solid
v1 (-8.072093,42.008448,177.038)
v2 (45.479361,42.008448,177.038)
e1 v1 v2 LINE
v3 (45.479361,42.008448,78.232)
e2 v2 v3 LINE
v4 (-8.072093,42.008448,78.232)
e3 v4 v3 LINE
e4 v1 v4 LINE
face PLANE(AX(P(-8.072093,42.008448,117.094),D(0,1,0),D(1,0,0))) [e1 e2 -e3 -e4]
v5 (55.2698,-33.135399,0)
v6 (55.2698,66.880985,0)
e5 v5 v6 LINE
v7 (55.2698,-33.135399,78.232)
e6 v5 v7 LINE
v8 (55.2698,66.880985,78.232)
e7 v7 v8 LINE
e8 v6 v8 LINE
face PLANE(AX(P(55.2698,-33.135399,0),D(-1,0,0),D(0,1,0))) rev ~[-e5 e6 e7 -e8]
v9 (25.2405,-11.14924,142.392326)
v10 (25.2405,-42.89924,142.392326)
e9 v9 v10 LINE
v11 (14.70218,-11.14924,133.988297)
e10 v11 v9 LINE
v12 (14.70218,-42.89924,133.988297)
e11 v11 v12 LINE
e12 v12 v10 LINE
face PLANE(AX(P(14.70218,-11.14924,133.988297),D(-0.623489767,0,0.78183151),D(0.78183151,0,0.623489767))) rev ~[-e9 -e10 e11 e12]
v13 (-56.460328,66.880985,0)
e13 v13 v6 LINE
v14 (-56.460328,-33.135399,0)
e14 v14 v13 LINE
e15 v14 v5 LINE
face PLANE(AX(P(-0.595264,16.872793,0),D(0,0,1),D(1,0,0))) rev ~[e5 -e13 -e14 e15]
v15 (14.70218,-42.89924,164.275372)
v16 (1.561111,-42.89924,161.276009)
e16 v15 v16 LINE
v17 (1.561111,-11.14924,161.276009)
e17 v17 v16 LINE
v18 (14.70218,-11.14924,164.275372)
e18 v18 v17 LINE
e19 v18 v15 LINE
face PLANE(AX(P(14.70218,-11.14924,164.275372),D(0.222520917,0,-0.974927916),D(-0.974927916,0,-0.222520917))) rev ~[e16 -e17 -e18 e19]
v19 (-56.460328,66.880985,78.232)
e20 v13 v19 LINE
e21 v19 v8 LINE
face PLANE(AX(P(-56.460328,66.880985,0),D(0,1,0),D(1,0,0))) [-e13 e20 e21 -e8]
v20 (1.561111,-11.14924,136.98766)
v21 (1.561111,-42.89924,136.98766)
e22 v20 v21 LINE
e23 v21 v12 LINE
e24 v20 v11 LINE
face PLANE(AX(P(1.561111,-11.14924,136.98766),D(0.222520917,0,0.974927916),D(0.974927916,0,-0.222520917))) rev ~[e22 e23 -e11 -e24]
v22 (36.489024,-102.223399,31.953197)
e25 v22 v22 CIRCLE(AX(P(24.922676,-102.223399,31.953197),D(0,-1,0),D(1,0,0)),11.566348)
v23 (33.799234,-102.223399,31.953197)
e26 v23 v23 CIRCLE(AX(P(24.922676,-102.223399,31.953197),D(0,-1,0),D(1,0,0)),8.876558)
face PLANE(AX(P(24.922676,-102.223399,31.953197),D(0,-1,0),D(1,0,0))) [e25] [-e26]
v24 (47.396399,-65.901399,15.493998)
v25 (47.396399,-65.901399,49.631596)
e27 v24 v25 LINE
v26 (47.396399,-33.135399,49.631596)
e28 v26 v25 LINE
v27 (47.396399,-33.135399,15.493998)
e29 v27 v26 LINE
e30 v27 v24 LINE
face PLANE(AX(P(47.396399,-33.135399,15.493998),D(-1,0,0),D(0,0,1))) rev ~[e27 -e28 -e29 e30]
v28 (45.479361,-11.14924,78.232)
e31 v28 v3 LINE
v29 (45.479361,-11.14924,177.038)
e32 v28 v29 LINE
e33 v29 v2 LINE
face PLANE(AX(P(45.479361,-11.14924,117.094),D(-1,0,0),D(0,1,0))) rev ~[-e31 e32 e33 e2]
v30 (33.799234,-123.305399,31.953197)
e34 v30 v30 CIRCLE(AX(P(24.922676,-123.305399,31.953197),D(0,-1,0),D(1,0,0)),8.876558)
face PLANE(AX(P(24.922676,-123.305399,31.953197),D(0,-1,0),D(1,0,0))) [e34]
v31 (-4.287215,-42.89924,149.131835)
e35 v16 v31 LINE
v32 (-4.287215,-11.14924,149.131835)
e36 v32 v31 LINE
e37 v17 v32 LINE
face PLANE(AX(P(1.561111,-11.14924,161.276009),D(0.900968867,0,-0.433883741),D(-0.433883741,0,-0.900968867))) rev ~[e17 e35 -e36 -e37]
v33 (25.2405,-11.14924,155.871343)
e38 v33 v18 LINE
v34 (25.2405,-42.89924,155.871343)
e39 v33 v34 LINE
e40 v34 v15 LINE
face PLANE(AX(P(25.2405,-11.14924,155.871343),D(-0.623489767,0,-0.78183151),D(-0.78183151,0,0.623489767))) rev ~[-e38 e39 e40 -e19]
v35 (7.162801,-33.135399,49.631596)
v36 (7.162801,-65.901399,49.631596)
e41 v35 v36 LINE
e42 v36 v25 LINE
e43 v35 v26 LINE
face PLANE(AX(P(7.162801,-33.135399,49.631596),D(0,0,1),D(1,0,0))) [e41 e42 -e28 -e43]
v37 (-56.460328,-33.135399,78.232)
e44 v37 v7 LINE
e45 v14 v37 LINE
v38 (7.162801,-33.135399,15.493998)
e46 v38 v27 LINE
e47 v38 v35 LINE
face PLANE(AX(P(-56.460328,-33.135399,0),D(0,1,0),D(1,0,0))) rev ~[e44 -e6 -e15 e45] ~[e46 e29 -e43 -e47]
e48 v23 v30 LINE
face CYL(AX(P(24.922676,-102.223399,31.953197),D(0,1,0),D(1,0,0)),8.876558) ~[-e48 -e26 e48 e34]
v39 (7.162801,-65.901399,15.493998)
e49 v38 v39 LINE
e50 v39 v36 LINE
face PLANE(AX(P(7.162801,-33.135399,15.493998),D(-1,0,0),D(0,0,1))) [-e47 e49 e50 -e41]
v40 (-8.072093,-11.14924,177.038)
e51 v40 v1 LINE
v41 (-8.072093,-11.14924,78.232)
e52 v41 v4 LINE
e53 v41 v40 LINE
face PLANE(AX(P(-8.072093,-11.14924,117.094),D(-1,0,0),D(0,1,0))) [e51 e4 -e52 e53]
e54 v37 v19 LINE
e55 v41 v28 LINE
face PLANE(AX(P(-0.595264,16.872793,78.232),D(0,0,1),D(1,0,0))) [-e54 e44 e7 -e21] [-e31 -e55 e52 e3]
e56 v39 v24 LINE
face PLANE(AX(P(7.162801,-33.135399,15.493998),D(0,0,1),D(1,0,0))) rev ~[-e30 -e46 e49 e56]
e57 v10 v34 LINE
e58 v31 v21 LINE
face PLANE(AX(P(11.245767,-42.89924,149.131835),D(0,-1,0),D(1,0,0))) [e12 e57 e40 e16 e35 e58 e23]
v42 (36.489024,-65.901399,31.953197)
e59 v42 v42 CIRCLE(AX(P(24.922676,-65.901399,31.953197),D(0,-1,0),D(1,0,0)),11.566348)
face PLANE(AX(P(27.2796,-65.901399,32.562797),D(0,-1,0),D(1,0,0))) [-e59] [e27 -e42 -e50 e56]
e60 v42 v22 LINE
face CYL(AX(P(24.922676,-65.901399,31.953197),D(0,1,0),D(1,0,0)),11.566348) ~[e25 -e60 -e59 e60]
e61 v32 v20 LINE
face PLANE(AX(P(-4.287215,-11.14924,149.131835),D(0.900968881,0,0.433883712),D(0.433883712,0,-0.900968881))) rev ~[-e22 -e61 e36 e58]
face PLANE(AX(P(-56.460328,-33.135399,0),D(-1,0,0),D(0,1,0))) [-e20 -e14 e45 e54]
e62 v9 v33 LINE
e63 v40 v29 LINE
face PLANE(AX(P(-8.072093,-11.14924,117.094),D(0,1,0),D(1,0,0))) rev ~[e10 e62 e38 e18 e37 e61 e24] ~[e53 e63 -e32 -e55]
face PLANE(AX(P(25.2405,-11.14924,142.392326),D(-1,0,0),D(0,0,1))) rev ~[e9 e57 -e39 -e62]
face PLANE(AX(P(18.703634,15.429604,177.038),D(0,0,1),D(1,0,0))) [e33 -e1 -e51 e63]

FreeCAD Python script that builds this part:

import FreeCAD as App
import Part
import Sketcher
Q = App.Units.Quantity

doc = App.newDocument("Part")
body = doc.addObject("PartDesign::Body", "Body")

sketch1 = body.newObject("Sketcher::SketchObject", "Sketch")
sketch1.AttachmentSupport = (doc.getObject("XY_Plane"), [""])
sketch1.MapMode = "FlatFace"
sketch1.addGeometry(Part.LineSegment(App.Vector(-56, 67, 0), App.Vector(-56, -33, 0)), False)
sketch1.addGeometry(Part.LineSegment(App.Vector(-56, -33, 0), App.Vector(55, -33, 0)), False)
sketch1.addGeometry(Part.LineSegment(App.Vector(55, -33, 0), App.Vector(55, 67, 0)), False)
sketch1.addGeometry(Part.LineSegment(App.Vector(55, 67, 0), App.Vector(-56, 67, 0)), False)
sketch1.addConstraint(Sketcher.Constraint("Coincident", 0, 2, 1, 1))
sketch1.addConstraint(Sketcher.Constraint("Coincident", 1, 2, 2, 1))
sketch1.addConstraint(Sketcher.Constraint("Coincident", 2, 2, 3, 1))
sketch1.addConstraint(Sketcher.Constraint("Coincident", 3, 2, 0, 1))
sketch1.addConstraint(Sketcher.Constraint("Vertical", 0))
sketch1.addConstraint(Sketcher.Constraint("Horizontal", 1))
sketch1.addConstraint(Sketcher.Constraint("Vertical", 2))
sketch1.addConstraint(Sketcher.Constraint("Horizontal", 3))
sketch1.addConstraint(Sketcher.Constraint("DistanceY", 0, 2, -1, 1, 33.135399))
sketch1.addConstraint(Sketcher.Constraint("DistanceX", -1, 1, 1, 2, 55.2698))
sketch1.addConstraint(Sketcher.Constraint("DistanceX", 1, 1, 1, 2, 111.730128))
sketch1.addConstraint(Sketcher.Constraint("DistanceY", 0, 2, 0, 1, 100.016385))
pad1 = body.newObject("PartDesign::Pad", "Pad")
pad1.Profile = sketch1
pad1.Length = Q("3.08 in")

sketch2 = body.newObject("Sketcher::SketchObject", "Sketch001")
sketch2.AttachmentSupport = (doc.getObject("XZ_Plane"), [""])
sketch2.MapMode = "FlatFace"
sketch2.AttachmentOffset = App.Placement(App.Vector(0, 0, 33.135399), App.Rotation())
sketch2.addGeometry(Part.LineSegment(App.Vector(7, 50, 0), App.Vector(7, 15, 0)), False)
sketch2.addGeometry(Part.LineSegment(App.Vector(7, 15, 0), App.Vector(47, 15, 0)), False)
sketch2.addGeometry(Part.LineSegment(App.Vector(47, 15, 0), App.Vector(47, 50, 0)), False)
sketch2.addGeometry(Part.LineSegment(App.Vector(47, 50, 0), App.Vector(7, 50, 0)), False)
sketch2.addConstraint(Sketcher.Constraint("Coincident", 0, 2, 1, 1))
sketch2.addConstraint(Sketcher.Constraint("Coincident", 1, 2, 2, 1))
sketch2.addConstraint(Sketcher.Constraint("Coincident", 2, 2, 3, 1))
sketch2.addConstraint(Sketcher.Constraint("Coincident", 3, 2, 0, 1))
sketch2.addConstraint(Sketcher.Constraint("Vertical", 0))
sketch2.addConstraint(Sketcher.Constraint("Horizontal", 1))
sketch2.addConstraint(Sketcher.Constraint("Vertical", 2))
sketch2.addConstraint(Sketcher.Constraint("Horizontal", 3))
sketch2.addConstraint(Sketcher.Constraint("DistanceX", 1, 1, 1, 2, Q("1.5839999 in")))
sketch2.addConstraint(Sketcher.Constraint("DistanceY", 0, 2, 0, 1, Q("1.3439999 in")))
sketch2.addConstraint(Sketcher.Constraint("DistanceY", -1, 1, 0, 2, Q("0.6099999 in")))
sketch2.addConstraint(Sketcher.Constraint("DistanceX", -1, 1, 0, 2, Q("0.282 in")))
pad2 = body.newObject("PartDesign::Pad", "Pad001")
pad2.Profile = sketch2
pad2.Length = Q("1.29 in")

sketch3 = body.newObject("Sketcher::SketchObject", "Sketch002")
sketch3.AttachmentSupport = (doc.getObject("XZ_Plane"), [""])
sketch3.MapMode = "FlatFace"
sketch3.AttachmentOffset = App.Placement(App.Vector(0, 0, 65.901399), App.Rotation())
sketch3.addGeometry(Part.Circle(App.Vector(25, 32, 0), App.Vector(0, 0, 1), 12), False)
sketch3.addConstraint(Sketcher.Constraint("DistanceY", -1, 1, 0, 3, Q("1.2579999 in")))
sketch3.addConstraint(Sketcher.Constraint("Diameter", 0, 23.132696))
sketch3.addConstraint(Sketcher.Constraint("DistanceX", -1, 1, 0, 3, 24.922676))
pad3 = body.newObject("PartDesign::Pad", "Pad002")
pad3.Profile = sketch3
pad3.Length = Q("1.43 in")

sketch4 = body.newObject("Sketcher::SketchObject", "Sketch003")
sketch4.AttachmentSupport = (doc.getObject("XZ_Plane"), [""])
sketch4.MapMode = "FlatFace"
sketch4.AttachmentOffset = App.Placement(App.Vector(0, 0, 102.223399), App.Rotation())
sketch4.addGeometry(Part.Circle(App.Vector(25, 32, 0), App.Vector(0, 0, 1), 9), False)
sketch4.addConstraint(Sketcher.Constraint("DistanceY", -1, 1, 0, 3, Q("1.2579999 in")))
sketch4.addConstraint(Sketcher.Constraint("Diameter", 0, 17.753116))
sketch4.addConstraint(Sketcher.Constraint("DistanceX", -1, 1, 0, 3, 24.922676))
pad4 = body.newObject("PartDesign::Pad", "Pad003")
pad4.Profile = sketch4
pad4.Length = Q("0.83 in")

sketch5 = body.newObject("Sketcher::SketchObject", "Sketch004")
sketch5.AttachmentSupport = (doc.getObject("XY_Plane"), [""])
sketch5.MapMode = "FlatFace"
sketch5.AttachmentOffset = App.Placement(App.Vector(0, 0, 3.08 * 25.4), App.Rotation())
sketch5.addGeometry(Part.LineSegment(App.Vector(-8, 42, 0), App.Vector(-8, -11, 0)), False)
sketch5.addGeometry(Part.LineSegment(App.Vector(-8, -11, 0), App.Vector(45, -11, 0)), False)
sketch5.addGeometry(Part.LineSegment(App.Vector(45, -11, 0), App.Vector(45, 42, 0)), False)
sketch5.addGeometry(Part.LineSegment(App.Vector(45, 42, 0), App.Vector(-8, 42, 0)), False)
sketch5.addConstraint(Sketcher.Constraint("Coincident", 0, 2, 1, 1))
sketch5.addConstraint(Sketcher.Constraint("Coincident", 1, 2, 2, 1))
sketch5.addConstraint(Sketcher.Constraint("Coincident", 2, 2, 3, 1))
sketch5.addConstraint(Sketcher.Constraint("Coincident", 3, 2, 0, 1))
sketch5.addConstraint(Sketcher.Constraint("Vertical", 0))
sketch5.addConstraint(Sketcher.Constraint("Horizontal", 1))
sketch5.addConstraint(Sketcher.Constraint("Vertical", 2))
sketch5.addConstraint(Sketcher.Constraint("Horizontal", 3))
sketch5.addConstraint(Sketcher.Constraint("DistanceX", 1, 1, 1, 2, 53.551454))
sketch5.addConstraint(Sketcher.Constraint("DistanceY", 0, 2, 0, 1, 53.157688))
sketch5.addConstraint(Sketcher.Constraint("DistanceY", 0, 2, -1, 1, 11.14924))
sketch5.addConstraint(Sketcher.Constraint("DistanceX", -1, 1, 1, 2, 45.479361))
pad5 = body.newObject("PartDesign::Pad", "Pad004")
pad5.Profile = sketch5
pad5.Length = Q("1.53 in")

sketch6 = body.newObject("Sketcher::SketchObject", "Sketch005")
sketch6.AttachmentSupport = (doc.getObject("XY_Plane"), [""])
sketch6.MapMode = "FlatFace"
sketch6.AttachmentOffset = App.Placement(App.Vector(0, 0, 4.61 * 25.4), App.Rotation())
sketch6.addGeometry(Part.LineSegment(App.Vector(-8, 42, 0), App.Vector(-8, -11, 0)), False)
sketch6.addGeometry(Part.LineSegment(App.Vector(-8, -11, 0), App.Vector(45, -11, 0)), False)
sketch6.addGeometry(Part.LineSegment(App.Vector(45, -11, 0), App.Vector(45, 42, 0)), False)
sketch6.addGeometry(Part.LineSegment(App.Vector(45, 42, 0), App.Vector(-8, 42, 0)), False)
sketch6.addConstraint(Sketcher.Constraint("Coincident", 0, 2, 1, 1))
sketch6.addConstraint(Sketcher.Constraint("Coincident", 1, 2, 2, 1))
sketch6.addConstraint(Sketcher.Constraint("Coincident", 2, 2, 3, 1))
sketch6.addConstraint(Sketcher.Constraint("Coincident", 3, 2, 0, 1))
sketch6.addConstraint(Sketcher.Constraint("Vertical", 0))
sketch6.addConstraint(Sketcher.Constraint("Horizontal", 1))
sketch6.addConstraint(Sketcher.Constraint("Vertical", 2))
sketch6.addConstraint(Sketcher.Constraint("Horizontal", 3))
sketch6.addConstraint(Sketcher.Constraint("DistanceX", 1, 1, 1, 2, 53.551454))
sketch6.addConstraint(Sketcher.Constraint("DistanceY", 0, 2, 0, 1, 53.157688))
sketch6.addConstraint(Sketcher.Constraint("DistanceY", 0, 2, -1, 1, 11.14924))
sketch6.addConstraint(Sketcher.Constraint("DistanceX", -1, 1, 1, 2, 45.479361))
pad6 = body.newObject("PartDesign::Pad", "Pad005")
pad6.Profile = sketch6
pad6.Length = Q("2.36 in")

sketch7 = body.newObject("Sketcher::SketchObject", "Sketch006")
sketch7.AttachmentSupport = (doc.getObject("XZ_Plane"), [""])
sketch7.MapMode = "FlatFace"
sketch7.AttachmentOffset = App.Placement(App.Vector(0, 0, 11.14924), App.Rotation())
sketch7.addGeometry(Part.LineSegment(App.Vector(25, 142, 0), App.Vector(25, 156, 0)), False)
sketch7.addGeometry(Part.LineSegment(App.Vector(25, 156, 0), App.Vector(15, 164, 0)), False)
sketch7.addGeometry(Part.LineSegment(App.Vector(15, 164, 0), App.Vector(2, 161, 0)), False)
sketch7.addGeometry(Part.LineSegment(App.Vector(2, 161, 0), App.Vector(-4, 149, 0)), False)
sketch7.addGeometry(Part.LineSegment(App.Vector(-4, 149, 0), App.Vector(2, 137, 0)), False)
sketch7.addGeometry(Part.LineSegment(App.Vector(2, 137, 0), App.Vector(15, 134, 0)), False)
sketch7.addGeometry(Part.LineSegment(App.Vector(15, 134, 0), App.Vector(25, 142, 0)), False)
sketch7.addConstraint(Sketcher.Constraint("Coincident", 0, 2, 1, 1))
sketch7.addConstraint(Sketcher.Constraint("Coincident", 1, 2, 2, 1))
sketch7.addConstraint(Sketcher.Constraint("Coincident", 2, 2, 3, 1))
sketch7.addConstraint(Sketcher.Constraint("Coincident", 3, 2, 4, 1))
sketch7.addConstraint(Sketcher.Constraint("Coincident", 4, 2, 5, 1))
sketch7.addConstraint(Sketcher.Constraint("Coincident", 5, 2, 6, 1))
sketch7.addConstraint(Sketcher.Constraint("Coincident", 6, 2, 0, 1))
sketch7.addConstraint(Sketcher.Constraint("Vertical", 0))
sketch7.addConstraint(Sketcher.Constraint("Vertical", 2, 2, 4, 2))
sketch7.addConstraint(Sketcher.Constraint("Vertical", 1, 2, 5, 2))
sketch7.addConstraint(Sketcher.Constraint("Equal", 1, 2))
sketch7.addConstraint(Sketcher.Constraint("Equal", 2, 3))
sketch7.addConstraint(Sketcher.Constraint("Equal", 3, 4))
sketch7.addConstraint(Sketcher.Constraint("Equal", 4, 5))
sketch7.addConstraint(Sketcher.Constraint("Equal", 5, 6))
sketch7.addConstraint(Sketcher.Constraint("DistanceX", -1, 1, 0, 2, 25.2405))
sketch7.addConstraint(Sketcher.Constraint("DistanceY", 0, 1, 0, 2, 13.479017))
sketch7.addConstraint(Sketcher.Constraint("DistanceX", -1, 1, 1, 2, 14.70218))
sketch7.addConstraint(Sketcher.Constraint("DistanceY", -1, 1, 1, 2, 164.275372))
sketch7.addConstraint(Sketcher.Constraint("DistanceX", -1, 1, 2, 2, 1.561111))
sketch7.addConstraint(Sketcher.Constraint("DistanceY", -1, 1, 2, 2, 161.276009))
pad7 = body.newObject("PartDesign::Pad", "Pad006")
pad7.Profile = sketch7
pad7.Length = Q("1.25 in")

doc.recompute()
